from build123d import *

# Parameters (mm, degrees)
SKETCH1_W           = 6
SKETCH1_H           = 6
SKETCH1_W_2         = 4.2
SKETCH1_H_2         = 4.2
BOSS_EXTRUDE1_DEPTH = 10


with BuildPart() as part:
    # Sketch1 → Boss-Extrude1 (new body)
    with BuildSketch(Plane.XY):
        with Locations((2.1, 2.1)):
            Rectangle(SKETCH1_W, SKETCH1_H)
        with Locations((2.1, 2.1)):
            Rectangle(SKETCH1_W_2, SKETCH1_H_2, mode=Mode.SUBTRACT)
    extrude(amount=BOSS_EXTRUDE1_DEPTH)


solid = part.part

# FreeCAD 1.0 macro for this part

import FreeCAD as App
import Part
import Sketcher

V = App.Vector


def add_polygon(sketch, points):
    """Adds a closed chain of lines whose ends are joined by coincident constraints."""
    first, n = sketch.GeometryCount, len(points)
    for a, b in zip(points, points[1:] + points[:1]):
        sketch.addGeometry(Part.LineSegment(App.Vector(*a, 0), App.Vector(*b, 0)), False)
    for i in range(n):
        sketch.addConstraint(Sketcher.Constraint("Coincident", first + i, 2, first + (i + 1) % n, 1))

doc = App.newDocument("Part")
body = doc.addObject("PartDesign::Body", "Body")

# Sketch on XY plane
sketch1 = body.newObject("Sketcher::SketchObject", "Sketch")
sketch1.AttachmentSupport = (doc.getObject("XY_Plane"), [""])
sketch1.MapMode = "FlatFace"
add_polygon(sketch1, [(-0.9, 5.1), (-0.9, -0.9), (5.1, -0.9), (5.1, 5.1)])  # lines 0-3
add_polygon(sketch1, [(4.2, 0), (0, 0), (0, 4.2), (4.2, 4.2)])  # lines 4-7
sketch1.addConstraint([
    Sketcher.Constraint("Vertical", 0),
    Sketcher.Constraint("Horizontal", 1),
    Sketcher.Constraint("Vertical", 2),
    Sketcher.Constraint("Horizontal", 3),
    Sketcher.Constraint("Horizontal", 4),
    Sketcher.Constraint("Vertical", 5),
    Sketcher.Constraint("Horizontal", 6),
    Sketcher.Constraint("Vertical", 7),
    Sketcher.Constraint("Coincident", 4, 2, -1, 1),
    Sketcher.Constraint("Equal", 3, 0),
    Sketcher.Constraint("Equal", 6, 5),
    Sketcher.Constraint("DistanceX", 1, 1, 1, 2, 6.0),
    Sketcher.Constraint("DistanceX", 4, 2, 4, 1, 4.2),
    Sketcher.Constraint("DistanceX", 0, 2, -1, 1, 0.9),
    Sketcher.Constraint("DistanceY", 0, 2, -1, 1, 0.9),
])
pad1 = body.newObject("PartDesign::Pad", "Pad")
pad1.Profile = sketch1
pad1.Length = 10

doc.recompute()
